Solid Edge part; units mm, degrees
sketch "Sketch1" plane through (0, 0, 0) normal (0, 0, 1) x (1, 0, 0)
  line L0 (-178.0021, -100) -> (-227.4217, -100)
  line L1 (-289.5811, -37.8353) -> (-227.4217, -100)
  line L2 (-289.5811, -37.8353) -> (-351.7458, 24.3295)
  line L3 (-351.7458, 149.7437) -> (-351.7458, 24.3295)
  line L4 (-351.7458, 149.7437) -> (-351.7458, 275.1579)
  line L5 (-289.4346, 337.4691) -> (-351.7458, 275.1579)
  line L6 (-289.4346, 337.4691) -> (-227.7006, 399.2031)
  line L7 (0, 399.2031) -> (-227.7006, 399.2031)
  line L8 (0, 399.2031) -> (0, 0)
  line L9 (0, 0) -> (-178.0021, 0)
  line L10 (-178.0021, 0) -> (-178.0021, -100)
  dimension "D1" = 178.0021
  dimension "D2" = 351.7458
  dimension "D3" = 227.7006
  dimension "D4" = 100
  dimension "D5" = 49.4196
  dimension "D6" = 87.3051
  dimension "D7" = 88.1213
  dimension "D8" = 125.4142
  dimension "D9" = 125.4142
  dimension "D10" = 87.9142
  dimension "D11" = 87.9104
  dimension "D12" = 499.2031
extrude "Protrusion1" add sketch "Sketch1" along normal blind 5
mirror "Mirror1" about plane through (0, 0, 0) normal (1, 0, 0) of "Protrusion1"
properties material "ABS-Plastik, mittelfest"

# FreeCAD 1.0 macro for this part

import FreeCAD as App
import Part
import Sketcher
Q = App.Units.Quantity

doc = App.newDocument("Part")
body = doc.addObject("PartDesign::Body", "Body")

sketch1 = body.newObject("Sketcher::SketchObject", "Sketch")
sketch1.AttachmentSupport = (doc.getObject("XY_Plane"), [""])
sketch1.MapMode = "FlatFace"
sketch1.addGeometry([
    Part.LineSegment(App.Vector(-227.4217, -100, 0), App.Vector(-178.0021, -100, 0)),
    Part.LineSegment(App.Vector(-178.0021, -100, 0), App.Vector(-178.0021, 0, 0)),
    Part.LineSegment(App.Vector(-178.0021, 0, 0), App.Vector(0, 0, 0)),
    Part.LineSegment(App.Vector(0, 0, 0), App.Vector(0, 399.2031, 0)),
    Part.LineSegment(App.Vector(0, 399.2031, 0), App.Vector(-227.7006, 399.2031, 0)),
    Part.LineSegment(App.Vector(-227.7006, 399.2031, 0), App.Vector(-351.7458, 275.1579, 0)),
    Part.LineSegment(App.Vector(-351.7458, 275.1579, 0), App.Vector(-351.7458, 24.3295, 0)),
    Part.LineSegment(App.Vector(-351.7458, 24.3295, 0), App.Vector(-289.5811, -37.8353, 0)),
    Part.LineSegment(App.Vector(-289.5811, -37.8353, 0), App.Vector(-227.4217, -100, 0)),
], False)
sketch1.addConstraint([
    Sketcher.Constraint("Coincident", 0, 2, 1, 1),
    Sketcher.Constraint("Coincident", 1, 2, 2, 1),
    Sketcher.Constraint("Coincident", 2, 2, 3, 1),
    Sketcher.Constraint("Coincident", 3, 2, 4, 1),
    Sketcher.Constraint("Coincident", 4, 2, 5, 1),
    Sketcher.Constraint("Coincident", 5, 2, 6, 1),
    Sketcher.Constraint("Coincident", 6, 2, 7, 1),
    Sketcher.Constraint("Coincident", 7, 2, 8, 1),
    Sketcher.Constraint("Coincident", 8, 2, 0, 1),
    Sketcher.Constraint("Horizontal", 0),
    Sketcher.Constraint("Vertical", 1),
    Sketcher.Constraint("Horizontal", 2),
    Sketcher.Constraint("Vertical", 3),
    Sketcher.Constraint("Horizontal", 4),
    Sketcher.Constraint("Vertical", 6),
    Sketcher.Constraint("Coincident", 2, 2, -1, 1),
    Sketcher.Constraint("DistanceX", 2, 1, 2, 2, Q("178.002 mm")),
    Sketcher.Constraint("DistanceY", 1, 1, 1, 2, Q("100 mm")),
    Sketcher.Constraint("DistanceX", 7, 2, -1, 1, Q("289.581 mm")),
    Sketcher.Constraint("DistanceX", 5, 2, -1, 1, Q("351.7458 mm")),
    Sketcher.Constraint("DistanceY", 3, 1, 3, 2, Q("399.203 mm")),
    Sketcher.Constraint("DistanceX", 0, 1, 0, 2, Q("49.4196 mm")),
    Sketcher.Constraint("DistanceX", 4, 2, 4, 1, Q("227.7006 mm")),
    Sketcher.Constraint("DistanceY", 6, 2, 6, 1, Q("250.8284 mm")),
    Sketcher.Constraint("DistanceY", -1, 1, 5, 2, Q("275.158 mm")),
    Sketcher.Constraint("Distance", 7, Q("87.9142 mm")),
])
pad1 = body.newObject("PartDesign::Pad", "Pad")
pad1.Profile = sketch1
pad1.Length = 5
doc.recompute()

mirrored = body.newObject("PartDesign::Mirrored", "Mirrored")
mirrored.Originals = [pad1]
mirrored.MirrorPlane = (doc.getObject("YZ_Plane"), [""])
body.Tip = mirrored

doc.recompute()
